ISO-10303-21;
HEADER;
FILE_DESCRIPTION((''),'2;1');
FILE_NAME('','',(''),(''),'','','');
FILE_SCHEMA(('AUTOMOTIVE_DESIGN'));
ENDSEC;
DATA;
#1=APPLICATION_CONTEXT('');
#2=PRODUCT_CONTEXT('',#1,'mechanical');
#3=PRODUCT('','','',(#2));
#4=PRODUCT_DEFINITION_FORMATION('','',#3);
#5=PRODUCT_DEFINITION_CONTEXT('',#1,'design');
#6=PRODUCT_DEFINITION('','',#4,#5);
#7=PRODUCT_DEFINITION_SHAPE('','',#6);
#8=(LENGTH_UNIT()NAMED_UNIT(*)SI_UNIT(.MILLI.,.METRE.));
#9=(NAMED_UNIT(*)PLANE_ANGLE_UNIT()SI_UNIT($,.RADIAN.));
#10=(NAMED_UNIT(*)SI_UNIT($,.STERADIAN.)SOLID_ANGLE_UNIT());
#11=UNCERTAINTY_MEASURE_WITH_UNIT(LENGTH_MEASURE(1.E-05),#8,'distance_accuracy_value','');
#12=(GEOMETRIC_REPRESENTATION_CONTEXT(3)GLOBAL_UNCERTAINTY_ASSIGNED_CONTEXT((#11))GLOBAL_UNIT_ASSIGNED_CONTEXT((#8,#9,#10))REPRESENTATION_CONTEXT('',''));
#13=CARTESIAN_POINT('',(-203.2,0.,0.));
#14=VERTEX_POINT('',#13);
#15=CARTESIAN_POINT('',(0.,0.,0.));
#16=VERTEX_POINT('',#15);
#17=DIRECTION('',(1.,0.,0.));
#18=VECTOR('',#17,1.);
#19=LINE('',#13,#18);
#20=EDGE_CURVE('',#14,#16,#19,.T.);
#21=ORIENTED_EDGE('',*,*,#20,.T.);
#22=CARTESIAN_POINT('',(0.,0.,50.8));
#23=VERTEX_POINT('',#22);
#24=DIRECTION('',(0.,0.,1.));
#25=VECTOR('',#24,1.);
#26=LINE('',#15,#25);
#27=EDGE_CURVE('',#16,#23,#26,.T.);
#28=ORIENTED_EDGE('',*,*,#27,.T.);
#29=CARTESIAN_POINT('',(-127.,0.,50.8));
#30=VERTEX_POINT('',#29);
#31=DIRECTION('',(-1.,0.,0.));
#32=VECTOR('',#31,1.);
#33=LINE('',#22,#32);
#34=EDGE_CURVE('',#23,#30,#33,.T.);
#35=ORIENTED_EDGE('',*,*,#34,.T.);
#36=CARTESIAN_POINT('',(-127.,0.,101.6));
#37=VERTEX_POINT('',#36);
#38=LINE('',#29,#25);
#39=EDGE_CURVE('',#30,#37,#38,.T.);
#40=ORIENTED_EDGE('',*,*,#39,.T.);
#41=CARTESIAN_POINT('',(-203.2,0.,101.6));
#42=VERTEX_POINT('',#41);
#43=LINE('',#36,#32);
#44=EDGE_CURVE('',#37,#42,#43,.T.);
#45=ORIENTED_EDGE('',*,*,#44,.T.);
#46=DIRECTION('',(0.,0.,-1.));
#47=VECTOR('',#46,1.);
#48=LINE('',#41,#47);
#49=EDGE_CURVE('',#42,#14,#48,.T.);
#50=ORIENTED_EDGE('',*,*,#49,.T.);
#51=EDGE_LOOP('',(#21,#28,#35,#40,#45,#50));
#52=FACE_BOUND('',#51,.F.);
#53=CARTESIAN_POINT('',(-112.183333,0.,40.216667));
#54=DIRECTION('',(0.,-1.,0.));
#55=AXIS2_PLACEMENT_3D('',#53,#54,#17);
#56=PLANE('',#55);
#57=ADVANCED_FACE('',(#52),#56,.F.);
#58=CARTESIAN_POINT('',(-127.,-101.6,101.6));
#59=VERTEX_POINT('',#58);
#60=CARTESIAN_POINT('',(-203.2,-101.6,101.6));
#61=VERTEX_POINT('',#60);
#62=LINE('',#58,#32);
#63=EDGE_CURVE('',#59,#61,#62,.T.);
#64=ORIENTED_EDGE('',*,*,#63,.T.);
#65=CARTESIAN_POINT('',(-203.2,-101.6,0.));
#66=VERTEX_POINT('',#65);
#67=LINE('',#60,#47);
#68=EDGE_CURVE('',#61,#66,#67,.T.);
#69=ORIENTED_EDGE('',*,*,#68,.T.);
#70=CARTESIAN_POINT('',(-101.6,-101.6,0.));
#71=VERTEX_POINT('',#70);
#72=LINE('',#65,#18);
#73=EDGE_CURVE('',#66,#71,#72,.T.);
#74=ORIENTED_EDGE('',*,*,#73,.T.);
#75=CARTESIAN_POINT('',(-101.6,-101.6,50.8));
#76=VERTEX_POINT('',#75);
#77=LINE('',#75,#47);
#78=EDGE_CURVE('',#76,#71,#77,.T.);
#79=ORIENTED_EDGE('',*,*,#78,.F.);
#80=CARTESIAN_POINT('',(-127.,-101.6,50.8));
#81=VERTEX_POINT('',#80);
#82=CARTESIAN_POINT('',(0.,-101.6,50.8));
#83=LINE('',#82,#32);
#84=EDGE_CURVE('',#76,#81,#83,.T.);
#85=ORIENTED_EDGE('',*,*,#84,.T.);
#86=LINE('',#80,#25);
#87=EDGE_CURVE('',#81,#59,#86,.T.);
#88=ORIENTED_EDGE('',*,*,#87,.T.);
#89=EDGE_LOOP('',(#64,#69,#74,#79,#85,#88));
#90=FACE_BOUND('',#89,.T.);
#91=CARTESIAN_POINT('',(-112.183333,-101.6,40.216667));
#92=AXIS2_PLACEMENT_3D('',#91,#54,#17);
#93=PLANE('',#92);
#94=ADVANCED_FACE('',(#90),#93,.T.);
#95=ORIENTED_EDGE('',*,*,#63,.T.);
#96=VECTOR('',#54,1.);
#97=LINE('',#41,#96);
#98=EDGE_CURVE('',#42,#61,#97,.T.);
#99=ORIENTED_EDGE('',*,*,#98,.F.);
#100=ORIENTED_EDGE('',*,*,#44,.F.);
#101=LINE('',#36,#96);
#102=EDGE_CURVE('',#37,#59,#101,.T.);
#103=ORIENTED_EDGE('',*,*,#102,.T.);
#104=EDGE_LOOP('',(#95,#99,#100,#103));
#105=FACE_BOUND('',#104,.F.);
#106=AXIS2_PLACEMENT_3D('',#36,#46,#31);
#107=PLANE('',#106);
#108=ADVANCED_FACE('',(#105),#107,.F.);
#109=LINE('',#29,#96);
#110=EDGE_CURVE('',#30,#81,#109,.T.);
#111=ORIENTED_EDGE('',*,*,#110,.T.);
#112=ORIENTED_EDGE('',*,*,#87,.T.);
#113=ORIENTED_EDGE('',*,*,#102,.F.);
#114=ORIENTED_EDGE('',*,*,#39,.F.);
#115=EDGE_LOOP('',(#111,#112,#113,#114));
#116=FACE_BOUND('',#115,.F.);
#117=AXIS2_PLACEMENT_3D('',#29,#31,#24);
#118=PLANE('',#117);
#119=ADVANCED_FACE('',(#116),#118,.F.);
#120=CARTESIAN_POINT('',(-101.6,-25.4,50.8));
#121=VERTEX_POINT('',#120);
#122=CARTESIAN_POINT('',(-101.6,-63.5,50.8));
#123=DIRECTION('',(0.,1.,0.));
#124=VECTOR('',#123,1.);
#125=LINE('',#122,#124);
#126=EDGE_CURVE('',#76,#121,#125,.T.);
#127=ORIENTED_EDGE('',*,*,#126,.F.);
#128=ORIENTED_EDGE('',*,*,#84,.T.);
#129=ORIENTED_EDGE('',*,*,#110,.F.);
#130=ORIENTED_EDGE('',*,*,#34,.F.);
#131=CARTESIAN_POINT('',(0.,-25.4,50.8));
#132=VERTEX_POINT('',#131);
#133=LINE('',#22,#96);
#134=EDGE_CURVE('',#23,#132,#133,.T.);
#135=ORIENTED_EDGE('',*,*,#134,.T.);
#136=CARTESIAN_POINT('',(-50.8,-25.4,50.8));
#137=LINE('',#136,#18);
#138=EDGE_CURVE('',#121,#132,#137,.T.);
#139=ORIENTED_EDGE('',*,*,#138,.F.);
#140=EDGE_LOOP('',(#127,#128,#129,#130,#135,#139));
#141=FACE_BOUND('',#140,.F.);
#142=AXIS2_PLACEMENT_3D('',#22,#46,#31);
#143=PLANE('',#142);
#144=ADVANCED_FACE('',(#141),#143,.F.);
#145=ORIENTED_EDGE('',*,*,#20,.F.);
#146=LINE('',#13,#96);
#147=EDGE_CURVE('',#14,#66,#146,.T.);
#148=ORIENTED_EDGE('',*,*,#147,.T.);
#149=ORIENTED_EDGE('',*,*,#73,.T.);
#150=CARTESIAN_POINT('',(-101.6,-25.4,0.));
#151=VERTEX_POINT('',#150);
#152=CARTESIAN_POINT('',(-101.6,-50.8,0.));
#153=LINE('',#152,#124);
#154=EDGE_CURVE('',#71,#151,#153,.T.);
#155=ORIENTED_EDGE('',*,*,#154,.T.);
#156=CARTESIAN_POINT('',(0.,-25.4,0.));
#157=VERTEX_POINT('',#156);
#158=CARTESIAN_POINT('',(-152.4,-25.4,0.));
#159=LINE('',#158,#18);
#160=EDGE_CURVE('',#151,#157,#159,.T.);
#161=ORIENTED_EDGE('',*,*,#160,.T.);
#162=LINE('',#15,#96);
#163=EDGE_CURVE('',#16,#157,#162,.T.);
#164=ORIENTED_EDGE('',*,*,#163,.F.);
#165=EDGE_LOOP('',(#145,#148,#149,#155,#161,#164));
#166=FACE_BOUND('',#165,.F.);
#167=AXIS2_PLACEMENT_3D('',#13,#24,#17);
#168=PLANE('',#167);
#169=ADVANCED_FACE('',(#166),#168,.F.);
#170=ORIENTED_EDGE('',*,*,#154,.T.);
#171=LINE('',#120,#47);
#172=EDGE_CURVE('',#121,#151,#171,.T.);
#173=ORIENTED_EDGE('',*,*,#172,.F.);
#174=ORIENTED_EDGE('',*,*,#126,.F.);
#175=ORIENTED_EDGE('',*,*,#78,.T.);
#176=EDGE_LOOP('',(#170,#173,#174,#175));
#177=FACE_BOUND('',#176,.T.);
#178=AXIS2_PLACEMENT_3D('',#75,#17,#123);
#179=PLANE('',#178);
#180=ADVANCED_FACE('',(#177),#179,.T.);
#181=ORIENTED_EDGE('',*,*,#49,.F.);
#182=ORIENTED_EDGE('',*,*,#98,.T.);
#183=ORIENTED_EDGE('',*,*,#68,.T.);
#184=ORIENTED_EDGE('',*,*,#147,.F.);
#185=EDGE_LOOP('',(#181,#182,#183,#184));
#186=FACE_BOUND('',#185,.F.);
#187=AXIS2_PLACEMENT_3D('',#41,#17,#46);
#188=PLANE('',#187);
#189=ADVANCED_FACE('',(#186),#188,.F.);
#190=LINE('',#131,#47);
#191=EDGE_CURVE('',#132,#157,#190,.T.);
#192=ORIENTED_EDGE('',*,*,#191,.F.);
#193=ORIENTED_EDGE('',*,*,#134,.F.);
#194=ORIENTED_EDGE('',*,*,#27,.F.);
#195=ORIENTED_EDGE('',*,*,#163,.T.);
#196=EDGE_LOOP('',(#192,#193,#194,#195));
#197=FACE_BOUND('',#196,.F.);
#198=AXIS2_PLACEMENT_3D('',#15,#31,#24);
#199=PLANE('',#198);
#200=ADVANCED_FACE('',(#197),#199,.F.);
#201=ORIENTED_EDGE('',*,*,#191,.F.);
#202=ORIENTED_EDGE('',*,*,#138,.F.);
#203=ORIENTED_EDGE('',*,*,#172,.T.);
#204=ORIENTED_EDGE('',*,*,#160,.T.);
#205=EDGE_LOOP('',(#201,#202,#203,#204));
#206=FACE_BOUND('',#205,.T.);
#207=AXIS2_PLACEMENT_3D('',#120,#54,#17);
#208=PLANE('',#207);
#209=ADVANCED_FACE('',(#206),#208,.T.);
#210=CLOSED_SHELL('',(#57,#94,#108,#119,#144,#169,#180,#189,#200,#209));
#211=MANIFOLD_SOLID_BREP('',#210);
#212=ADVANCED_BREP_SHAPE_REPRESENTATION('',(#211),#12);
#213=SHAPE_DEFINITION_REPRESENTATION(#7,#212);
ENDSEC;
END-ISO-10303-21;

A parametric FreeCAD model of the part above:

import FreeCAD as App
import Part
import Sketcher

V = App.Vector
Q = App.Units.Quantity

doc = App.newDocument("Part")
body = doc.addObject("PartDesign::Body", "Body")

sketch1 = body.newObject("Sketcher::SketchObject", "Sketch")
sketch1.AttachmentSupport = (doc.getObject("XZ_Plane"), [""])
sketch1.MapMode = "FlatFace"
sketch1.addGeometry(Part.LineSegment(V(-203, 0, 0), V(0, 0, 0)), False)
sketch1.addGeometry(Part.LineSegment(V(0, 0, 0), V(0, 51, 0)), False)
sketch1.addGeometry(Part.LineSegment(V(0, 51, 0), V(-127, 51, 0)), False)
sketch1.addGeometry(Part.LineSegment(V(-127, 51, 0), V(-127, 102, 0)), False)
sketch1.addGeometry(Part.LineSegment(V(-127, 102, 0), V(-203, 102, 0)), False)
sketch1.addGeometry(Part.LineSegment(V(-203, 102, 0), V(-203, 0, 0)), False)
sketch1.addConstraint(Sketcher.Constraint("Coincident", 0, 2, 1, 1))
sketch1.addConstraint(Sketcher.Constraint("Coincident", 1, 2, 2, 1))
sketch1.addConstraint(Sketcher.Constraint("Coincident", 2, 2, 3, 1))
sketch1.addConstraint(Sketcher.Constraint("Coincident", 3, 2, 4, 1))
sketch1.addConstraint(Sketcher.Constraint("Coincident", 4, 2, 5, 1))
sketch1.addConstraint(Sketcher.Constraint("Coincident", 5, 2, 0, 1))
sketch1.addConstraint(Sketcher.Constraint("Horizontal", 0))
sketch1.addConstraint(Sketcher.Constraint("Vertical", 1))
sketch1.addConstraint(Sketcher.Constraint("Horizontal", 2))
sketch1.addConstraint(Sketcher.Constraint("Vertical", 3))
sketch1.addConstraint(Sketcher.Constraint("Horizontal", 4))
sketch1.addConstraint(Sketcher.Constraint("Vertical", 5))
sketch1.addConstraint(Sketcher.Constraint("Coincident", 0, 2, -1, 1))
sketch1.addConstraint(Sketcher.Constraint("Equal", 1, 3))
sketch1.addConstraint(Sketcher.Constraint("DistanceX", 0, 1, 0, 2, Q("8 in")))
sketch1.addConstraint(Sketcher.Constraint("DistanceX", 2, 2, 2, 1, Q("5 in")))
sketch1.addConstraint(Sketcher.Constraint("DistanceY", 1, 1, 1, 2, Q("2 in")))
pad1 = body.newObject("PartDesign::Pad", "Pad")
pad1.Profile = sketch1
pad1.Length = Q("4 in")

sketch2 = body.newObject("Sketcher::SketchObject", "Sketch001")
sketch2.AttachmentSupport = (doc.getObject("XY_Plane"), [""])
sketch2.MapMode = "FlatFace"
sketch2.AttachmentOffset = App.Placement(V(0, 0, 2 * 25.4), App.Rotation())
sketch2.addGeometry(Part.LineSegment(V(-102, -25, 0), V(-102, -102, 0)), False)
sketch2.addGeometry(Part.LineSegment(V(-102, -102, 0), V(0, -102, 0)), False)
sketch2.addGeometry(Part.LineSegment(V(0, -102, 0), V(0, -25, 0)), False)
sketch2.addGeometry(Part.LineSegment(V(0, -25, 0), V(-102, -25, 0)), False)
sketch2.addConstraint(Sketcher.Constraint("Coincident", 0, 2, 1, 1))
sketch2.addConstraint(Sketcher.Constraint("Coincident", 1, 2, 2, 1))
sketch2.addConstraint(Sketcher.Constraint("Coincident", 2, 2, 3, 1))
sketch2.addConstraint(Sketcher.Constraint("Coincident", 3, 2, 0, 1))
sketch2.addConstraint(Sketcher.Constraint("Vertical", 0))
sketch2.addConstraint(Sketcher.Constraint("Horizontal", 1))
sketch2.addConstraint(Sketcher.Constraint("Vertical", 2))
sketch2.addConstraint(Sketcher.Constraint("Horizontal", 3))
sketch2.addConstraint(Sketcher.Constraint("PointOnObject", 1, 2, -2))
sketch2.addConstraint(Sketcher.Constraint("DistanceX", 1, 1, 1, 2, Q("4 in")))
sketch2.addConstraint(Sketcher.Constraint("DistanceY", 0, 2, 0, 1, Q("3 in")))
sketch2.addConstraint(Sketcher.Constraint("DistanceY", 0, 2, -1, 1, Q("4 in")))
pocket1 = body.newObject("PartDesign::Pocket", "Pocket")
pocket1.Profile = sketch2
pocket1.Length = Q("4 in")

doc.recompute()
